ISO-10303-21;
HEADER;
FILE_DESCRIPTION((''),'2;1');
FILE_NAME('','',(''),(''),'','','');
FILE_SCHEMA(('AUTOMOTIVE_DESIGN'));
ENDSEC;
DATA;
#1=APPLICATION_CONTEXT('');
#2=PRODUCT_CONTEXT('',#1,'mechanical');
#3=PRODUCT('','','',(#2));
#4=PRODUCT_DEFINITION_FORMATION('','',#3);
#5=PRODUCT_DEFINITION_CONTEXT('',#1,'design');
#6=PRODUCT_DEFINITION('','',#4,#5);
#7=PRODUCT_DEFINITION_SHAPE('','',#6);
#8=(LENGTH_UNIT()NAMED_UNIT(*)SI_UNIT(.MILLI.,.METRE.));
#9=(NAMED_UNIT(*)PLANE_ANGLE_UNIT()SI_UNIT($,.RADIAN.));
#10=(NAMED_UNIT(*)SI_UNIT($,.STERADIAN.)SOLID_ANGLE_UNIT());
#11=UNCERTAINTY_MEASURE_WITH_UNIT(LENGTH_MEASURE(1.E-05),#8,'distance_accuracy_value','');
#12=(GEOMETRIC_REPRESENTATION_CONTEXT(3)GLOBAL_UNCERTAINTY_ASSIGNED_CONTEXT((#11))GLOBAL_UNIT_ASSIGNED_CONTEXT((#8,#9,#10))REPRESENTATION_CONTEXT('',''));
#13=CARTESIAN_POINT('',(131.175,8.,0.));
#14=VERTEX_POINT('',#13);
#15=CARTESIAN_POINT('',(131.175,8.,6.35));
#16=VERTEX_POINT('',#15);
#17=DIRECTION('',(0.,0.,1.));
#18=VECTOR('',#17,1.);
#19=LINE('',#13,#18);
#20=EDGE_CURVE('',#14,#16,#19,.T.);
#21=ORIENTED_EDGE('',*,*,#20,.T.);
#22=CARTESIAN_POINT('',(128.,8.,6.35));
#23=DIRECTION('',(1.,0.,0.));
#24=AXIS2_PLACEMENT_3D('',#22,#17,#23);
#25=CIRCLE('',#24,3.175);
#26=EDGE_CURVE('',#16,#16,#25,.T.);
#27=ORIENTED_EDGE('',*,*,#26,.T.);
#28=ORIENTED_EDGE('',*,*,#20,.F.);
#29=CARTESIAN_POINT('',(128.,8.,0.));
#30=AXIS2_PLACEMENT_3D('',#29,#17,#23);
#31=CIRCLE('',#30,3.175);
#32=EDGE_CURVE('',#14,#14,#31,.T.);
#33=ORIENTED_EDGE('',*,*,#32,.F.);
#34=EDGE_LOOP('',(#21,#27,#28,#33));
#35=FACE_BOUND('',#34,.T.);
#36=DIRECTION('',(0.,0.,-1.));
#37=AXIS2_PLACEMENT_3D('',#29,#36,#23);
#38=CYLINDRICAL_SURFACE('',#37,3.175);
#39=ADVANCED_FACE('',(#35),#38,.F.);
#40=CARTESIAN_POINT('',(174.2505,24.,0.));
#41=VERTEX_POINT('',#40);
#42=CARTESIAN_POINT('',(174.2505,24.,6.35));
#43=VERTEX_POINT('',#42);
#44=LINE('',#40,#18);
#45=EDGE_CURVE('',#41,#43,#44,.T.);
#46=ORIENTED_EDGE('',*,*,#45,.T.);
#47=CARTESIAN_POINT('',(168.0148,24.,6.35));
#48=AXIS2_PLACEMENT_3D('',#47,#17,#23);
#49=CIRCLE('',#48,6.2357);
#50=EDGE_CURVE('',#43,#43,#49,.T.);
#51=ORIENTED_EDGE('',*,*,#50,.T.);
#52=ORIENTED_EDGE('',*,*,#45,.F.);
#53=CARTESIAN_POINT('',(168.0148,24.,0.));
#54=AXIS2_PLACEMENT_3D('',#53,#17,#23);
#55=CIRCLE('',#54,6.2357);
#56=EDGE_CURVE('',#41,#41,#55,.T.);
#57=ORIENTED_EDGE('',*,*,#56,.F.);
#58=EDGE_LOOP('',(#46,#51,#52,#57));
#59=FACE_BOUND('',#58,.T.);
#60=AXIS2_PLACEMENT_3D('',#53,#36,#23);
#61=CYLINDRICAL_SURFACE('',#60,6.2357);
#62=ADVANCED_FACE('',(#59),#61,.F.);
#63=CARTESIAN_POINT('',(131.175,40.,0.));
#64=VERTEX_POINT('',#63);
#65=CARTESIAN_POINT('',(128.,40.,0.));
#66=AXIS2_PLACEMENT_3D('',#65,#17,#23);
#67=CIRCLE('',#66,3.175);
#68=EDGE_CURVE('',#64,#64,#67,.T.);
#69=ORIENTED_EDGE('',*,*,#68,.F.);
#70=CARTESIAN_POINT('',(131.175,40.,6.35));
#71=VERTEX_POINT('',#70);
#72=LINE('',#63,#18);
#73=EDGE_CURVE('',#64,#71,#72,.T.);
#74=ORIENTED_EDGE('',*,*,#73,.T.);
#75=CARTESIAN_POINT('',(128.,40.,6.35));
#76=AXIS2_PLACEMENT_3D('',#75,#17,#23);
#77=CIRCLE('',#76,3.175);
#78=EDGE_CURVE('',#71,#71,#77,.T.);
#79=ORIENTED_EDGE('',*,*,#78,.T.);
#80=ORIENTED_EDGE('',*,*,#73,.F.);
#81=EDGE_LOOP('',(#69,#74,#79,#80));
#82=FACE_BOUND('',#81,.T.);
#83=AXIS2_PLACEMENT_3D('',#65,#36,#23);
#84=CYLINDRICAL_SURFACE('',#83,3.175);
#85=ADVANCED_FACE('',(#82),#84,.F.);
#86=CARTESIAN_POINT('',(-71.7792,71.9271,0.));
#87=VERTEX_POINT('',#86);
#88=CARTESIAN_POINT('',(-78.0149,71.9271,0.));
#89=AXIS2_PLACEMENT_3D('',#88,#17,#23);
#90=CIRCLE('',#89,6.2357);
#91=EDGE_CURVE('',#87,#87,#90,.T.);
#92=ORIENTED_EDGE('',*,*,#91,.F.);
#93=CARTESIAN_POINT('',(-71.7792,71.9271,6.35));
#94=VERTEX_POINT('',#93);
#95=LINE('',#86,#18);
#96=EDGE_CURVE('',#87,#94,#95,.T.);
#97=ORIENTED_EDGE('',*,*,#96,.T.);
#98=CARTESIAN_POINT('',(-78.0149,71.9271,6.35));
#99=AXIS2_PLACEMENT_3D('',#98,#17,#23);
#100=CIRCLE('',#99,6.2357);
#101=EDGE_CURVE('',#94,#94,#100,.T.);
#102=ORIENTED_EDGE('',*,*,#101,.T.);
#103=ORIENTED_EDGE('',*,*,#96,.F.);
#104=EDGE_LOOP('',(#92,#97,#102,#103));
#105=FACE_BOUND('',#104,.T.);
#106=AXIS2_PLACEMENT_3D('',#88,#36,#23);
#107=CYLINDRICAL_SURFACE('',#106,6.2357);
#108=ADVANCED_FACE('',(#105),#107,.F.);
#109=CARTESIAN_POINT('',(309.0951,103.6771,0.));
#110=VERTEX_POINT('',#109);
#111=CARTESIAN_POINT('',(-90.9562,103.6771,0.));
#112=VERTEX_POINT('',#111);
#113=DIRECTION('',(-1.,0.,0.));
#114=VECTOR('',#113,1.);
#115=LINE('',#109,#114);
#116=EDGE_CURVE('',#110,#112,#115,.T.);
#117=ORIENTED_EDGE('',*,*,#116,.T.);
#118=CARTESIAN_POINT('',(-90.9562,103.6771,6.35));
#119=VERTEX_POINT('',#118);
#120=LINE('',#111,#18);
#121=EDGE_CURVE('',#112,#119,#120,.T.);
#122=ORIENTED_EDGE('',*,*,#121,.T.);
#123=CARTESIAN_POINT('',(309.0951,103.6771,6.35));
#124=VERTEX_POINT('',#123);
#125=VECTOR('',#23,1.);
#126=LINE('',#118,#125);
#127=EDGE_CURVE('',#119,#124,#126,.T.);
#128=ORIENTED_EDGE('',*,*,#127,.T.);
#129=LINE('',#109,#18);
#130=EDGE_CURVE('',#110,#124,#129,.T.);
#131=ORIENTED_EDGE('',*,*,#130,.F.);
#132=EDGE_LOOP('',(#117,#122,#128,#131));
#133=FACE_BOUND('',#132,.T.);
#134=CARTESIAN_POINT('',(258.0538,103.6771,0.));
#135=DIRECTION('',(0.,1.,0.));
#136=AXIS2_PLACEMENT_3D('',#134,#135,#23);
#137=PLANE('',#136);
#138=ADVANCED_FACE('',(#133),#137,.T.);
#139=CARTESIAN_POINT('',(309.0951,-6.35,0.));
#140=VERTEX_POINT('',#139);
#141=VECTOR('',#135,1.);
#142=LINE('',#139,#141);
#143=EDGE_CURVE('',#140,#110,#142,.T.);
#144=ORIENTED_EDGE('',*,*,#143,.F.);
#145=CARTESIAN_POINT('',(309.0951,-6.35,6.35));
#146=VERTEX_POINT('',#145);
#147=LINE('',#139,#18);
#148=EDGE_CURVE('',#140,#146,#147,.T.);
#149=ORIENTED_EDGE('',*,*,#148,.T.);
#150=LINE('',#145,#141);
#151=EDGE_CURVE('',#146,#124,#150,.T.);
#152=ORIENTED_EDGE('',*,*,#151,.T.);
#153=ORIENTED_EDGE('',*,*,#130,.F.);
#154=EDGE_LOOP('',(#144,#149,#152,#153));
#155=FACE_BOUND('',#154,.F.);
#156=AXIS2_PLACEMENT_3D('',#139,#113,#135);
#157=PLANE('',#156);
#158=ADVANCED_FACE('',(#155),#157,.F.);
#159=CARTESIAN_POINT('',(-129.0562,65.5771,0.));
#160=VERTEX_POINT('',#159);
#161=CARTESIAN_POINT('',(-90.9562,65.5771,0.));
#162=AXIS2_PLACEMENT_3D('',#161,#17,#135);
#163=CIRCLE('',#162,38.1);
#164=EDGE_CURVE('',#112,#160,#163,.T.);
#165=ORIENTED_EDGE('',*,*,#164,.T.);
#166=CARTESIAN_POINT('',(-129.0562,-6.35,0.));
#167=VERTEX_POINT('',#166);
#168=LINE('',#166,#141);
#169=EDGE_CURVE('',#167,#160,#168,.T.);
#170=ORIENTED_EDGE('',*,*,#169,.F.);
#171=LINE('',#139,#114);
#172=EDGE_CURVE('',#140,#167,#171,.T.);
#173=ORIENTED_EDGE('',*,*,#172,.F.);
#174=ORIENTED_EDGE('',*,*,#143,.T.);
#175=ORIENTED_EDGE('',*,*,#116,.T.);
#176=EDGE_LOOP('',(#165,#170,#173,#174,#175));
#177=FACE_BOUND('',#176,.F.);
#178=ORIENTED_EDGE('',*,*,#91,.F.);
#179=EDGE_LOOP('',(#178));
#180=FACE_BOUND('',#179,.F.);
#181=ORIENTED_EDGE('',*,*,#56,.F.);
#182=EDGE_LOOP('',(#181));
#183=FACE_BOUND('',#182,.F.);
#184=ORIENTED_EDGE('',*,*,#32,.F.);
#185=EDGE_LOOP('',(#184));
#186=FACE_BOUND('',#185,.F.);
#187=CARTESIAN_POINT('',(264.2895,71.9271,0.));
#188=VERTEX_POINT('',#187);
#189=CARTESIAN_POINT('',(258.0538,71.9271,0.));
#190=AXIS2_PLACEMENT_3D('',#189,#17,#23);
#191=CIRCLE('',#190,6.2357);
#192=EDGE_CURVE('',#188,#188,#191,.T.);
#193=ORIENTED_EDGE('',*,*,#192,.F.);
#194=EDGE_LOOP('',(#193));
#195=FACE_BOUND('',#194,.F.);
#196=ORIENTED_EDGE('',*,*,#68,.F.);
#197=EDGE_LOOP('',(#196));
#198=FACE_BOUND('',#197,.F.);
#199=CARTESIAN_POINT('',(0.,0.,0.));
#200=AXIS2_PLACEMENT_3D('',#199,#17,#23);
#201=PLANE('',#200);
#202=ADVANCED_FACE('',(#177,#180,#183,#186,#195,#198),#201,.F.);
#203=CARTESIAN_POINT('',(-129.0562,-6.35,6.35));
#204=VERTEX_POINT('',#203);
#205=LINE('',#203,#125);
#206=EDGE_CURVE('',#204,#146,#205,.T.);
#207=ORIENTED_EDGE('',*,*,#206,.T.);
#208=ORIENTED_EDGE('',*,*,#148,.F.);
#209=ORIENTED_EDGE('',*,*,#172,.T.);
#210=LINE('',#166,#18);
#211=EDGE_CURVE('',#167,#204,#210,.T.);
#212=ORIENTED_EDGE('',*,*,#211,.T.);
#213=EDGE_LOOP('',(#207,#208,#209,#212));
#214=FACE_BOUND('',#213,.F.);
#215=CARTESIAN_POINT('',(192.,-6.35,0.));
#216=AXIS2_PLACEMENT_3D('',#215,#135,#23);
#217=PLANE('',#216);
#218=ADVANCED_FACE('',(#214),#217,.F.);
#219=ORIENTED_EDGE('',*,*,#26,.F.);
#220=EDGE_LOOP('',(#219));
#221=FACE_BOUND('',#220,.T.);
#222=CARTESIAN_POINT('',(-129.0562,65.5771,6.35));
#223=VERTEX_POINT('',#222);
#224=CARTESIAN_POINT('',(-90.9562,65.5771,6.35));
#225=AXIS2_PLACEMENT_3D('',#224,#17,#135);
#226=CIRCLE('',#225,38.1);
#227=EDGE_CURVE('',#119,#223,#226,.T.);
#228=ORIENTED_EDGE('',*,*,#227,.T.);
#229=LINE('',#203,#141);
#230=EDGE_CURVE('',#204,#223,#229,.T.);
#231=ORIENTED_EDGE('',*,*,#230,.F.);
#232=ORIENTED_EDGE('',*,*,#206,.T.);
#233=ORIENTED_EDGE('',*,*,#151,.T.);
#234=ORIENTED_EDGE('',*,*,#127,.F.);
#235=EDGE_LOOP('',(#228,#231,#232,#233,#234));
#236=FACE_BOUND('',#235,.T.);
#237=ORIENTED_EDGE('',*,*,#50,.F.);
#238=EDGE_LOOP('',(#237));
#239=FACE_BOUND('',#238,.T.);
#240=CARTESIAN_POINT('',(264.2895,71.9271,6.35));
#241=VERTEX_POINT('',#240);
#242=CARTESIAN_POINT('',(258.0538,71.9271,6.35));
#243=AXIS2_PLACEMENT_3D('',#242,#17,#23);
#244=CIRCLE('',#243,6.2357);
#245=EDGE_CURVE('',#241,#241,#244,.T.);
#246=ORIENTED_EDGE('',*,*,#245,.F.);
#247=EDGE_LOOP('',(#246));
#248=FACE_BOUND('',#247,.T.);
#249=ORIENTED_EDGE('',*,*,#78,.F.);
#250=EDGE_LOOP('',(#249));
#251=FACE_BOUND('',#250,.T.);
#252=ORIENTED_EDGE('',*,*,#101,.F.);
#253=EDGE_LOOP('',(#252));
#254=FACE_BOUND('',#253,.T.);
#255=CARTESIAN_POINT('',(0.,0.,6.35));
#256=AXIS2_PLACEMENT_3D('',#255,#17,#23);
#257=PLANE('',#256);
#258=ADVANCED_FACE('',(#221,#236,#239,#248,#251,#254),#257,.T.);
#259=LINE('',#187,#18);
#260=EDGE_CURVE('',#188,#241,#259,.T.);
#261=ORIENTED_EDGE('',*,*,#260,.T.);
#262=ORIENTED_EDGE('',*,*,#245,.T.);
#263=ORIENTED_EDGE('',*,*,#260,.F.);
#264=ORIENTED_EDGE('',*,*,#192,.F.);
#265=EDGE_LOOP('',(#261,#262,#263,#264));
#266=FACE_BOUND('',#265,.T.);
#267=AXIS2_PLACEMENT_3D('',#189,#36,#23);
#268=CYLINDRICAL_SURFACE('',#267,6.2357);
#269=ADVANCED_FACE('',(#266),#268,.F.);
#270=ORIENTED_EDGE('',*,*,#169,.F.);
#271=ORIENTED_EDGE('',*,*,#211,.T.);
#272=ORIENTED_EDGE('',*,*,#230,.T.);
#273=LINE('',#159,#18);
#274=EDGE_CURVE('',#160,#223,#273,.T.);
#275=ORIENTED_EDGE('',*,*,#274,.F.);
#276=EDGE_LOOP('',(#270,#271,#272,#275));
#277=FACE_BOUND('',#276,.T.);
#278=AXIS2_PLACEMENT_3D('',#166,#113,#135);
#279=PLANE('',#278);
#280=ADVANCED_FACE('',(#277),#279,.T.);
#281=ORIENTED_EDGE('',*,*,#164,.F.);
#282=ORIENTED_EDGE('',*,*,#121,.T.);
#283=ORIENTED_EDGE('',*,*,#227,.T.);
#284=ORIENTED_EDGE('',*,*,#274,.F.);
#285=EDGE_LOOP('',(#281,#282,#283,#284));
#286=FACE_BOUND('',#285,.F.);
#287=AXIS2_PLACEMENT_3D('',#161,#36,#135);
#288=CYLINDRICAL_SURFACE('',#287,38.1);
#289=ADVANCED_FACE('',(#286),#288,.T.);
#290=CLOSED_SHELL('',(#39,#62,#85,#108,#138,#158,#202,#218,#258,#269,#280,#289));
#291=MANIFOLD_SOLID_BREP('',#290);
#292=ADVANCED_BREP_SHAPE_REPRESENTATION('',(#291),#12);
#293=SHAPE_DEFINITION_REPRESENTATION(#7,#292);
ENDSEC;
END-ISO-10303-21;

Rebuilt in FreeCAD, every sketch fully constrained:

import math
import FreeCAD as App
import Part
import Sketcher
Q = App.Units.Quantity

doc = App.newDocument("Part")
body = doc.addObject("PartDesign::Body", "Body")

# Sketch on XY plane
sketch1 = doc.addObject("Sketcher::SketchObject", "Sketch")
body.addObject(sketch1)
sketch1.AttachmentSupport = (doc.XY_Plane, [""])
sketch1.MapMode = "FlatFace"
sketch1.addGeometry(Part.LineSegment(App.Vector(309.1, 103.7, 0), App.Vector(-91, 103.7, 0)), False)
sketch1.addGeometry(Part.ArcOfCircle(Part.Circle(App.Vector(-91, 65.6, 0), App.Vector(0, 0, 1), 38.1), math.radians(90), math.radians(180)), False)
sketch1.addGeometry(Part.LineSegment(App.Vector(-129.1, 65.6, 0), App.Vector(-129.1, -6.3, 0)), False)
sketch1.addGeometry(Part.LineSegment(App.Vector(-129.1, -6.3, 0), App.Vector(309.1, -6.3, 0)), False)
sketch1.addGeometry(Part.LineSegment(App.Vector(309.1, -6.3, 0), App.Vector(309.1, 103.7, 0)), False)
sketch1.addGeometry(Part.Circle(App.Vector(128, 8, 0), App.Vector(0, 0, 1), 3.2), False)
sketch1.addGeometry(Part.Circle(App.Vector(168, 24, 0), App.Vector(0, 0, 1), 6.2), False)
sketch1.addGeometry(Part.Circle(App.Vector(128, 40, 0), App.Vector(0, 0, 1), 3.2), False)
sketch1.addGeometry(Part.Circle(App.Vector(-78, 71.9, 0), App.Vector(0, 0, 1), 6.2), False)
sketch1.addGeometry(Part.Circle(App.Vector(258.1, 71.9, 0), App.Vector(0, 0, 1), 6.2), False)
sketch1.addConstraint(Sketcher.Constraint("Tangent", 0, 2, 1, 1))
sketch1.addConstraint(Sketcher.Constraint("Tangent", 1, 2, 2, 1))
sketch1.addConstraint(Sketcher.Constraint("Coincident", 2, 2, 3, 1))
sketch1.addConstraint(Sketcher.Constraint("Coincident", 3, 2, 4, 1))
sketch1.addConstraint(Sketcher.Constraint("Coincident", 4, 2, 0, 1))
sketch1.addConstraint(Sketcher.Constraint("Horizontal", 0))
sketch1.addConstraint(Sketcher.Constraint("Vertical", 2))
sketch1.addConstraint(Sketcher.Constraint("Horizontal", 3))
sketch1.addConstraint(Sketcher.Constraint("Vertical", 4))
sketch1.addConstraint(Sketcher.Constraint("Equal", 5, 7))
sketch1.addConstraint(Sketcher.Constraint("Equal", 6, 8))
sketch1.addConstraint(Sketcher.Constraint("Equal", 8, 9))
sketch1.addConstraint(Sketcher.Constraint("Horizontal", 8, 3, 9, 3))
sketch1.addConstraint(Sketcher.Constraint("Vertical", 5, 3, 7, 3))
sketch1.addConstraint(Sketcher.Constraint("Radius", 1, Q("1.5 in")))
sketch1.addConstraint(Sketcher.Constraint("Diameter", 5, Q("0.25 in")))
sketch1.addConstraint(Sketcher.Constraint("Diameter", 6, Q("0.491 in")))
sketch1.addConstraint(Sketcher.Constraint("DistanceY", 2, 2, -1, 1, Q("0.25 in")))
sketch1.addConstraint(Sketcher.Constraint("DistanceY", 1, 3, 8, 3, Q("0.25 in")))
sketch1.addConstraint(Sketcher.Constraint("DistanceX", 1, 2, 8, 3, Q("2.0095 in")))
sketch1.addConstraint(Sketcher.Constraint("DistanceX", 9, 3, 3, 2, Q("2.0095 in")))
sketch1.addConstraint(Sketcher.Constraint("DistanceX", 0, 2, 0, 1, Q("400.0513 mm")))
sketch1.addConstraint(Sketcher.Constraint("DistanceY", 2, 2, 2, 1, Q("71.927 mm")))
sketch1.addConstraint(Sketcher.Constraint("DistanceY", -1, 1, 7, 3, Q("1.5748 in")))
sketch1.addConstraint(Sketcher.Constraint("DistanceX", -1, 1, 9, 3, Q("10.1596 in")))
sketch1.addConstraint(Sketcher.Constraint("DistanceX", 1, 3, 6, 3, Q("10.1957 in")))
sketch1.addConstraint(Sketcher.Constraint("DistanceY", 6, 3, 1, 3, Q("1.6369 in")))
sketch1.addConstraint(Sketcher.Constraint("DistanceX", -1, 1, 5, 3, Q("128 mm")))
sketch1.addConstraint(Sketcher.Constraint("DistanceY", -1, 1, 5, 3, Q("8 mm")))
pad1 = doc.addObject("PartDesign::Pad", "Pad")
body.addObject(pad1)
pad1.Profile = sketch1
pad1.Length = Q("0.25 in")

doc.recompute()
